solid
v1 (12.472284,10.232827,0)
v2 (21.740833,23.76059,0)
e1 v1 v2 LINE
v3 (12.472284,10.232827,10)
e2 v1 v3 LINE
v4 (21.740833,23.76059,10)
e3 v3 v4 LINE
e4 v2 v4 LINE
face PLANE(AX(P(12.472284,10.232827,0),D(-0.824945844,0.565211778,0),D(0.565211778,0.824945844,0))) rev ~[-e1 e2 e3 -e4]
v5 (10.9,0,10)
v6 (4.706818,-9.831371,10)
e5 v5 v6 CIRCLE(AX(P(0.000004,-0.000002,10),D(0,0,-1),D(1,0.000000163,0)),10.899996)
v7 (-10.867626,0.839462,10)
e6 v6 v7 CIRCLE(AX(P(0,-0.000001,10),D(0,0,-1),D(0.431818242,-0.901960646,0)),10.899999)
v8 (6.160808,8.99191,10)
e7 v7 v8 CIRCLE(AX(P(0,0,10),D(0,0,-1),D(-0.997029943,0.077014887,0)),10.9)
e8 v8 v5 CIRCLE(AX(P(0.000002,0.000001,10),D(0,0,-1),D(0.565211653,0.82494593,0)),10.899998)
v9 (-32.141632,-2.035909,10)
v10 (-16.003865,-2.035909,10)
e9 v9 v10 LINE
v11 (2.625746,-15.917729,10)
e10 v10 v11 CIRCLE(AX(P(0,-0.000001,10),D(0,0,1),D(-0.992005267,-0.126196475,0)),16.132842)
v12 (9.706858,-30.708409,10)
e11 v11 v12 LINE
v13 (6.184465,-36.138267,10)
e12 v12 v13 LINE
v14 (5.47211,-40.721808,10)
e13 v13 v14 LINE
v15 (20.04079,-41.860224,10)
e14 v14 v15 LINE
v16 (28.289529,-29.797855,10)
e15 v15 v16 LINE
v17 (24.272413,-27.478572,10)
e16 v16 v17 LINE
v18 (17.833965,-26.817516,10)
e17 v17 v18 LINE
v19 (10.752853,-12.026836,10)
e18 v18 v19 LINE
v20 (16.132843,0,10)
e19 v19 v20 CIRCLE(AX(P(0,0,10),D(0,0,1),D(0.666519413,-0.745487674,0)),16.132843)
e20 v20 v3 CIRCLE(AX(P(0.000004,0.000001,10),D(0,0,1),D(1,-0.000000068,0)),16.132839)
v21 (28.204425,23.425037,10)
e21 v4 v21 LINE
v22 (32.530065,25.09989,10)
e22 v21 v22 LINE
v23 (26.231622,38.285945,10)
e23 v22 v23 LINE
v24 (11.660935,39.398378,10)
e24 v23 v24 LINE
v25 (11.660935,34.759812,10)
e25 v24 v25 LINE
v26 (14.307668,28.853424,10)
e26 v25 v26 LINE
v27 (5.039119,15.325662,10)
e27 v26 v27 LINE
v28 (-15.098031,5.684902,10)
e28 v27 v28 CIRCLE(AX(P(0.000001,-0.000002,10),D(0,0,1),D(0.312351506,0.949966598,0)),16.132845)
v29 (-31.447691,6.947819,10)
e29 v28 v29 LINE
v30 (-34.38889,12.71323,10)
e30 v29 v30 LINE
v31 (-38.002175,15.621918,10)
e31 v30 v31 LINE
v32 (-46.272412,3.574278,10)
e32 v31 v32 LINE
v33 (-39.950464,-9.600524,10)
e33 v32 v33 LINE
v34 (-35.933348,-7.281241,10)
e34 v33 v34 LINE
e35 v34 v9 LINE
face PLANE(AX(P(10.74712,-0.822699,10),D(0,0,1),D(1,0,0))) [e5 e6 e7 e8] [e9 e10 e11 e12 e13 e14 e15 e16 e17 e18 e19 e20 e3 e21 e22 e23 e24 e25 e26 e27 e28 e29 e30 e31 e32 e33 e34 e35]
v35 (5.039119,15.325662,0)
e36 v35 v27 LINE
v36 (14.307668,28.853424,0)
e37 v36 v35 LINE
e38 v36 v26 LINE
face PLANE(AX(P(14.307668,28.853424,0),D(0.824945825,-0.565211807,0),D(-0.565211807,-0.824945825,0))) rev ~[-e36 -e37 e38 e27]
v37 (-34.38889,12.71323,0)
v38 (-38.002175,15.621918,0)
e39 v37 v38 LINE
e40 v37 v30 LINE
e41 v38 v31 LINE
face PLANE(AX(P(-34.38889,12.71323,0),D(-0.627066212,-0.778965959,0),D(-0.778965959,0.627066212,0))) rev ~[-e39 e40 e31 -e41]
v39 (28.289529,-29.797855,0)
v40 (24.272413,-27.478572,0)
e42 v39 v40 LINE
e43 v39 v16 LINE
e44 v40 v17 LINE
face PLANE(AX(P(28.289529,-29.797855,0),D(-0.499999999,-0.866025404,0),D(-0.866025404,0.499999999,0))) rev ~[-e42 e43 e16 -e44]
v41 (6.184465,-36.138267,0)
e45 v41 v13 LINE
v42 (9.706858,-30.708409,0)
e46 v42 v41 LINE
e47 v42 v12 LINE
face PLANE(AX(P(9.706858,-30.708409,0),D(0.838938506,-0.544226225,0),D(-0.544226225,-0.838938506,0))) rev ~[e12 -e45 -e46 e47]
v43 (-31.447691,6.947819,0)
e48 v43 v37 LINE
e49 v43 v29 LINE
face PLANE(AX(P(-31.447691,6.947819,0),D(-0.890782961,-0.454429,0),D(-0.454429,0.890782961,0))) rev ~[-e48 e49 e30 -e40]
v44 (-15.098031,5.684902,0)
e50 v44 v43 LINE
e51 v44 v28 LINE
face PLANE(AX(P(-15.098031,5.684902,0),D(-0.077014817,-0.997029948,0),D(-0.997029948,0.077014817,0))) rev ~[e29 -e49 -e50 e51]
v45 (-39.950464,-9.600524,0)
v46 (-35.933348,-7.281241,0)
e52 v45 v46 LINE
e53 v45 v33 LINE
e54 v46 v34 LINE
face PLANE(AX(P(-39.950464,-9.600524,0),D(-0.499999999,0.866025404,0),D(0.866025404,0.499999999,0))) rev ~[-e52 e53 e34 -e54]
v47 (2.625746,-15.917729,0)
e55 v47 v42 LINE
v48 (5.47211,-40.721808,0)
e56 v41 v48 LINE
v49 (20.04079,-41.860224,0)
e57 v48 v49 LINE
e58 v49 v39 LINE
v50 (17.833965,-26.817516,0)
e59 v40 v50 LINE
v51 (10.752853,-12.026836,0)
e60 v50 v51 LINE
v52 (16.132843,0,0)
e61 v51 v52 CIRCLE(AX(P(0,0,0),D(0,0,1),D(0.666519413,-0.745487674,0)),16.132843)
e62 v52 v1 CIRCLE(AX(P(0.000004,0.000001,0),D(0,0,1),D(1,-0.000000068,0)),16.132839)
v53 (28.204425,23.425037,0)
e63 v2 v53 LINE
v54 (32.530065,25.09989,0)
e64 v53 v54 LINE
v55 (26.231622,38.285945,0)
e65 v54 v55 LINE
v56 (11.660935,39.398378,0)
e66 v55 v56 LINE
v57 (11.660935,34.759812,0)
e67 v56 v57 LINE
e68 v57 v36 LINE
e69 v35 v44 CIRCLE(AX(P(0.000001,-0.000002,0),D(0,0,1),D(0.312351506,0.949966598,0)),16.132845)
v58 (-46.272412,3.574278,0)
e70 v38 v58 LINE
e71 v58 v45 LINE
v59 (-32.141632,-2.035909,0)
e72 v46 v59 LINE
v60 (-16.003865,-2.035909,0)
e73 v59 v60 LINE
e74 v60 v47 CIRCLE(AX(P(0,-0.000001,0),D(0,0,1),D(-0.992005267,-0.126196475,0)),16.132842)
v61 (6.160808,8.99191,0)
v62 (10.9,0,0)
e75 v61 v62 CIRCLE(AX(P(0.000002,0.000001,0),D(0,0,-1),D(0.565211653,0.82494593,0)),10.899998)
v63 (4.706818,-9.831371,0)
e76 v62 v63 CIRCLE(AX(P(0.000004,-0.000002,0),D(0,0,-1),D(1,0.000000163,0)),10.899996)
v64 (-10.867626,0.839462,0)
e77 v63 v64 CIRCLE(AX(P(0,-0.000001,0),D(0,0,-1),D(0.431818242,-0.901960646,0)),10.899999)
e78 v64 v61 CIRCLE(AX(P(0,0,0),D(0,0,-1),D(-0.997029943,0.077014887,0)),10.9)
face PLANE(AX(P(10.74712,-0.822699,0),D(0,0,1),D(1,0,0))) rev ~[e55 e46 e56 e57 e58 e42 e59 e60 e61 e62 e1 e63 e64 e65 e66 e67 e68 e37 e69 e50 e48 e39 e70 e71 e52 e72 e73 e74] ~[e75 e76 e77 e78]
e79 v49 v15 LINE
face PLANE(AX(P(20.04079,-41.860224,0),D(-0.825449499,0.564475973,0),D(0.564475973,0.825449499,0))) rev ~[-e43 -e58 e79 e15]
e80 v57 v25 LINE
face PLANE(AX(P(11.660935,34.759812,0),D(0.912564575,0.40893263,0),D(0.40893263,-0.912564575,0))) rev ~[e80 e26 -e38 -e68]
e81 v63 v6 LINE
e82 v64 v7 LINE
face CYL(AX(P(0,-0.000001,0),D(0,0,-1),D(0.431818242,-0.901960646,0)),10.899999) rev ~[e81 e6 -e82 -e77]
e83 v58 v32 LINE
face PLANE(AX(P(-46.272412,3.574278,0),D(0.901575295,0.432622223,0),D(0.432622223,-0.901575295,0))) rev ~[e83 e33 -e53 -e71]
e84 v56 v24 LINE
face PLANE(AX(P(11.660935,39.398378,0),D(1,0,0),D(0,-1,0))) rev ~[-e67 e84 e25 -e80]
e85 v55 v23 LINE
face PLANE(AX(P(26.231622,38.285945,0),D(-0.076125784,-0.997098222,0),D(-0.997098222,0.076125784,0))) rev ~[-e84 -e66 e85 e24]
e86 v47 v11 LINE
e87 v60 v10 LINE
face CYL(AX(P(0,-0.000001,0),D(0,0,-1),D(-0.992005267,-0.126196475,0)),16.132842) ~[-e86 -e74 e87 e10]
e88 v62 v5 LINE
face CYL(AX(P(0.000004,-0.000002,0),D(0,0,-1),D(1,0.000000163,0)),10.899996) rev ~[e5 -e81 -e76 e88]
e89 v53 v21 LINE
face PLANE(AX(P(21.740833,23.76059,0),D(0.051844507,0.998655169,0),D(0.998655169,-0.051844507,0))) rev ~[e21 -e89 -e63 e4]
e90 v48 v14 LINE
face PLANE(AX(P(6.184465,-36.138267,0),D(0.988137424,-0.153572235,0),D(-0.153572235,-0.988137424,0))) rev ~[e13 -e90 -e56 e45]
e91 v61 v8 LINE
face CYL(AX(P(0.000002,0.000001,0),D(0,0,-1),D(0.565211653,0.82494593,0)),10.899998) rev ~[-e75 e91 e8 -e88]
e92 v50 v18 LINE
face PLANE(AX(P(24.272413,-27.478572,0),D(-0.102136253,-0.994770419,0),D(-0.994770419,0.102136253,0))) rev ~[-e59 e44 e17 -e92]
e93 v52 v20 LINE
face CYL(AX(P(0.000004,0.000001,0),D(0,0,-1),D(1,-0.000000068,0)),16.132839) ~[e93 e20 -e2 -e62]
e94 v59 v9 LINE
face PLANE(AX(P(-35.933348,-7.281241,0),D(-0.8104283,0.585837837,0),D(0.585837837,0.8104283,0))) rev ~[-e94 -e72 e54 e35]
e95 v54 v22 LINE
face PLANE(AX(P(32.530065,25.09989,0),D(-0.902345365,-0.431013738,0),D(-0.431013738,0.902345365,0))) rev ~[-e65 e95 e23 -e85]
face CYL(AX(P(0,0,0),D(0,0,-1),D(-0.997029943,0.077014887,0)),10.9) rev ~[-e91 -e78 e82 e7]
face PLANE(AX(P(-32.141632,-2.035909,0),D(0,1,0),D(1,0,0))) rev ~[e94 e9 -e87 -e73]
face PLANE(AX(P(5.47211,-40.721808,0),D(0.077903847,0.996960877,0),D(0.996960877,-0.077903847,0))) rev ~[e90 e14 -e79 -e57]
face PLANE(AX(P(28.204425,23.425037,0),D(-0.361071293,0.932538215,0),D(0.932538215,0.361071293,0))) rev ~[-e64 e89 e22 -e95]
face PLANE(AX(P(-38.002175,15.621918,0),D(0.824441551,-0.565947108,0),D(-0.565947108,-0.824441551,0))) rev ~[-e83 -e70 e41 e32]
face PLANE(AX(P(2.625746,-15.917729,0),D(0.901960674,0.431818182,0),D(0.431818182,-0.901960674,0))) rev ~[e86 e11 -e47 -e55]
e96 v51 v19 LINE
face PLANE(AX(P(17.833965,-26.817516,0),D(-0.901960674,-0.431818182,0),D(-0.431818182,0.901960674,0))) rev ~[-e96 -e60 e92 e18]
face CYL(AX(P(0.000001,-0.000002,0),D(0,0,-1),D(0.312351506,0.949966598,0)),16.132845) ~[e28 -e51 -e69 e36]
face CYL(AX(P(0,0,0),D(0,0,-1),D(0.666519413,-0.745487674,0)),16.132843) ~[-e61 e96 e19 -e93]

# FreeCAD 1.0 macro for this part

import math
import FreeCAD as App
import Part
import Sketcher
Q = App.Units.Quantity

doc = App.newDocument("Part")
body = doc.addObject("PartDesign::Body", "Body")

# Sketch on XY plane
sketch1 = doc.addObject("Sketcher::SketchObject", "Sketch")
body.addObject(sketch1)
sketch1.AttachmentSupport = (doc.XY_Plane, [""])
sketch1.MapMode = "FlatFace"
sketch1.addGeometry([
    Part.ArcOfCircle(Part.Circle(App.Vector(0, 0, 0), App.Vector(0, 0, 1), 16.132843), math.radians(-48.201004), math.radians(0.000001)),  # 0
    Part.ArcOfCircle(Part.Circle(App.Vector(0.000004, 0.000001, 0), App.Vector(0, 0, 1), 16.132839), math.radians(-0.000004), math.radians(39.367012)),  # 1
    Part.LineSegment(App.Vector(12.472284, 10.232827, 0), App.Vector(21.740833, 23.76059, 0)),  # 2
    Part.LineSegment(App.Vector(21.740833, 23.76059, 0), App.Vector(28.204425, 23.425037, 0)),  # 3
    Part.LineSegment(App.Vector(28.204425, 23.425037, 0), App.Vector(32.530065, 25.09989, 0)),  # 4
    Part.LineSegment(App.Vector(32.530065, 25.09989, 0), App.Vector(26.231622, 38.285945, 0)),  # 5
    Part.LineSegment(App.Vector(26.231622, 38.285945, 0), App.Vector(11.660935, 39.398378, 0)),  # 6
    Part.LineSegment(App.Vector(11.660935, 39.398378, 0), App.Vector(11.660935, 34.759812, 0)),  # 7
    Part.LineSegment(App.Vector(11.660935, 34.759812, 0), App.Vector(14.307668, 28.853424, 0)),  # 8
    Part.LineSegment(App.Vector(14.307668, 28.853424, 0), App.Vector(5.039119, 15.325662, 0)),  # 9
    Part.ArcOfCircle(Part.Circle(App.Vector(0.000001, -0.000002, 0), App.Vector(0, 0, 1), 16.132845), math.radians(71.799), math.radians(159.366999)),  # 10
    Part.LineSegment(App.Vector(-15.098031, 5.684902, 0), App.Vector(-31.447691, 6.947819, 0)),  # 11
    Part.LineSegment(App.Vector(-31.447691, 6.947819, 0), App.Vector(-34.38889, 12.71323, 0)),  # 12
    Part.LineSegment(App.Vector(-34.38889, 12.71323, 0), App.Vector(-38.002175, 15.621918, 0)),  # 13
    Part.LineSegment(App.Vector(-38.002175, 15.621918, 0), App.Vector(-46.272412, 3.574278, 0)),  # 14
    Part.LineSegment(App.Vector(-46.272412, 3.574278, 0), App.Vector(-39.950464, -9.600524, 0)),  # 15
    Part.LineSegment(App.Vector(-39.950464, -9.600524, 0), App.Vector(-35.933348, -7.281241, 0)),  # 16
    Part.LineSegment(App.Vector(-35.933348, -7.281241, 0), App.Vector(-32.141632, -2.035909, 0)),  # 17
    Part.LineSegment(App.Vector(-32.141632, -2.035909, 0), App.Vector(-16.003865, -2.035909, 0)),  # 18
    Part.ArcOfCircle(Part.Circle(App.Vector(0, -0.000001, 0), App.Vector(0, 0, 1), 16.132842), math.radians(-172.750144), math.radians(-80.632993)),  # 19
    Part.LineSegment(App.Vector(2.625746, -15.917729, 0), App.Vector(9.706858, -30.708409, 0)),  # 20
    Part.LineSegment(App.Vector(9.706858, -30.708409, 0), App.Vector(6.184465, -36.138267, 0)),  # 21
    Part.LineSegment(App.Vector(6.184465, -36.138267, 0), App.Vector(5.47211, -40.721808, 0)),  # 22
    Part.LineSegment(App.Vector(5.47211, -40.721808, 0), App.Vector(20.04079, -41.860224, 0)),  # 23
    Part.LineSegment(App.Vector(20.04079, -41.860224, 0), App.Vector(28.289529, -29.797855, 0)),  # 24
    Part.LineSegment(App.Vector(28.289529, -29.797855, 0), App.Vector(24.272413, -27.478572, 0)),  # 25
    Part.LineSegment(App.Vector(24.272413, -27.478572, 0), App.Vector(17.833965, -26.817516, 0)),  # 26
    Part.LineSegment(App.Vector(17.833965, -26.817516, 0), App.Vector(10.752853, -12.026836, 0)),  # 27
    Part.ArcOfCircle(Part.Circle(App.Vector(0, 0, 0), App.Vector(0, 0, 1), 10.9), math.radians(55.583006), math.radians(175.582998)),  # 28
    Part.ArcOfCircle(Part.Circle(App.Vector(0.000002, 0.000001, 0), App.Vector(0, 0, 1), 10.899998), math.radians(-0.000006), math.radians(55.58301)),  # 29
    Part.ArcOfCircle(Part.Circle(App.Vector(0.000004, -0.000002, 0), App.Vector(0, 0, 1), 10.899996), math.radians(-64.417011), math.radians(0.000009)),  # 30
    Part.ArcOfCircle(Part.Circle(App.Vector(0, -0.000001, 0), App.Vector(0, 0, 1), 10.899999), math.radians(175.582996), math.radians(295.583006)),  # 31
], False)
sketch1.addConstraint([
    Sketcher.Constraint("Coincident", 0, 2, 1, 1),
    Sketcher.Constraint("Coincident", 1, 2, 2, 1),
    Sketcher.Constraint("Coincident", 2, 2, 3, 1),
    Sketcher.Constraint("Coincident", 3, 2, 4, 1),
    Sketcher.Constraint("Coincident", 4, 2, 5, 1),
    Sketcher.Constraint("Coincident", 5, 2, 6, 1),
    Sketcher.Constraint("Coincident", 6, 2, 7, 1),
    Sketcher.Constraint("Coincident", 7, 2, 8, 1),
    Sketcher.Constraint("Coincident", 8, 2, 9, 1),
    Sketcher.Constraint("Coincident", 9, 2, 10, 1),
    Sketcher.Constraint("Coincident", 10, 2, 11, 1),
    Sketcher.Constraint("Coincident", 11, 2, 12, 1),
    Sketcher.Constraint("Coincident", 12, 2, 13, 1),
    Sketcher.Constraint("Coincident", 13, 2, 14, 1),
    Sketcher.Constraint("Coincident", 14, 2, 15, 1),
    Sketcher.Constraint("Coincident", 15, 2, 16, 1),
    Sketcher.Constraint("Coincident", 16, 2, 17, 1),
    Sketcher.Constraint("Coincident", 17, 2, 18, 1),
    Sketcher.Constraint("Coincident", 18, 2, 19, 1),
    Sketcher.Constraint("Coincident", 19, 2, 20, 1),
    Sketcher.Constraint("Coincident", 20, 2, 21, 1),
    Sketcher.Constraint("Coincident", 21, 2, 22, 1),
    Sketcher.Constraint("Coincident", 22, 2, 23, 1),
    Sketcher.Constraint("Coincident", 23, 2, 24, 1),
    Sketcher.Constraint("Coincident", 24, 2, 25, 1),
    Sketcher.Constraint("Coincident", 25, 2, 26, 1),
    Sketcher.Constraint("Coincident", 26, 2, 27, 1),
    Sketcher.Constraint("Coincident", 27, 2, 0, 1),
    Sketcher.Constraint("Coincident", 28, 1, 29, 2),
    Sketcher.Constraint("Coincident", 29, 1, 30, 2),
    Sketcher.Constraint("Coincident", 30, 1, 31, 2),
    Sketcher.Constraint("Coincident", 31, 1, 28, 2),
    Sketcher.Constraint("Vertical", 7),
    Sketcher.Constraint("Horizontal", 18),
    Sketcher.Constraint("Coincident", 0, 3, -1, 1),
    Sketcher.Constraint("Coincident", 1, 3, -1, 1),
    Sketcher.Constraint("Coincident", 10, 3, -1, 1),
    Sketcher.Constraint("Coincident", 19, 3, -1, 1),
    Sketcher.Constraint("Coincident", 28, 3, -1, 1),
    Sketcher.Constraint("Coincident", 29, 3, -1, 1),
    Sketcher.Constraint("Coincident", 30, 3, -1, 1),
    Sketcher.Constraint("PointOnObject", 0, 2, -1),
    Sketcher.Constraint("PointOnObject", 29, 1, -1),
    Sketcher.Constraint("Radius", 28, Q("10.9 mm")),
    Sketcher.Constraint("Radius", 31, Q("10.899999 mm")),
    Sketcher.Constraint("Radius", 1, Q("16.132839 mm")),
    Sketcher.Constraint("Radius", 10, Q("16.132845 mm")),
    Sketcher.Constraint("Radius", 19, Q("16.132842 mm")),
    Sketcher.Constraint("DistanceY", 2, 2, 4, 2, Q("1.3393 mm")),
    Sketcher.Constraint("DistanceX", 12, 2, 11, 2, Q("2.941199 mm")),
    Sketcher.Constraint("DistanceY", 11, 2, 13, 2, Q("8.674099 mm")),
    Sketcher.Constraint("DistanceY", 22, 2, 20, 2, Q("10.013399 mm")),
    Sketcher.Constraint("DistanceX", 21, 2, 26, 2, Q("11.6495 mm")),
    Sketcher.Constraint("Distance", 5, Q("14.613091 mm")),
    Sketcher.Constraint("Distance", 6, Q("14.613091 mm")),
    Sketcher.Constraint("Distance", 14, Q("14.613092 mm")),
    Sketcher.Constraint("Distance", 15, Q("14.613091 mm")),
    Sketcher.Constraint("Distance", 23, Q("14.613091 mm")),
    Sketcher.Constraint("Distance", 24, Q("14.613091 mm")),
    Sketcher.Constraint("DistanceX", 18, 1, 18, 2, Q("16.137767 mm")),
    Sketcher.Constraint("DistanceY", 7, 2, 7, 1, Q("4.638566 mm")),
    Sketcher.Constraint("DistanceY", -1, 1, 2, 2, Q("23.76059 mm")),
    Sketcher.Constraint("DistanceY", -1, 1, 7, 2, Q("34.759812 mm")),
    Sketcher.Constraint("DistanceX", -1, 1, 9, 2, Q("5.039119 mm")),
    Sketcher.Constraint("DistanceX", 10, 2, -1, 1, Q("15.098031 mm")),
    Sketcher.Constraint("DistanceX", 11, 2, -1, 1, Q("31.447691 mm")),
    Sketcher.Constraint("DistanceY", -1, 1, 11, 2, Q("6.947819 mm")),
    Sketcher.Constraint("DistanceY", -1, 1, 12, 2, Q("12.71323 mm")),
    Sketcher.Constraint("DistanceY", -1, 1, 14, 2, Q("3.574278 mm")),
    Sketcher.Constraint("DistanceX", 16, 2, -1, 1, Q("35.933348 mm")),
    Sketcher.Constraint("DistanceY", 16, 2, -1, 1, Q("7.281241 mm")),
    Sketcher.Constraint("DistanceY", 17, 2, -1, 1, Q("2.035909 mm")),
    Sketcher.Constraint("DistanceY", 19, 2, -1, 1, Q("15.917729 mm")),
    Sketcher.Constraint("DistanceY", 20, 2, -1, 1, Q("30.708409 mm")),
    Sketcher.Constraint("DistanceX", -1, 1, 22, 2, Q("5.47211 mm")),
    Sketcher.Constraint("DistanceX", -1, 1, 23, 2, Q("20.04079 mm")),
    Sketcher.Constraint("DistanceX", -1, 1, 24, 2, Q("28.289529 mm")),
    Sketcher.Constraint("DistanceY", 25, 2, -1, 1, Q("27.478572 mm")),
    Sketcher.Constraint("DistanceX", -1, 1, 28, 1, Q("6.160808 mm")),
    Sketcher.Constraint("DistanceX", -1, 1, 30, 1, Q("4.706818 mm")),
    Sketcher.Constraint("DistanceY", -1, 1, 31, 1, Q("0.839462 mm")),
    Sketcher.Constraint("DistanceX", 1, 2, 0, 2, Q("3.660559 mm")),
    Sketcher.Constraint("DistanceX", 1, 2, 2, 2, Q("9.268549 mm")),
    Sketcher.Constraint("DistanceX", 1, 2, 3, 2, Q("15.732141 mm")),
    Sketcher.Constraint("DistanceY", 1, 2, 3, 2, Q("13.19221 mm")),
    Sketcher.Constraint("DistanceX", 3, 2, 4, 2, Q("4.32564 mm")),
    Sketcher.Constraint("DistanceX", 2, 2, 5, 2, Q("4.490789 mm")),
    Sketcher.Constraint("DistanceY", 8, 2, 5, 2, Q("9.432521 mm")),
    Sketcher.Constraint("DistanceX", 14, 2, 12, 2, Q("11.883522 mm")),
    Sketcher.Constraint("DistanceX", 14, 2, 15, 2, Q("6.321948 mm")),
    Sketcher.Constraint("DistanceX", 19, 2, 20, 2, Q("7.081112 mm")),
    Sketcher.Constraint("DistanceX", 19, 2, 21, 2, Q("3.558719 mm")),
    Sketcher.Constraint("DistanceY", 22, 2, 21, 2, Q("4.583541 mm")),
    Sketcher.Constraint("DistanceX", 21, 2, 25, 2, Q("18.087948 mm")),
    Sketcher.Constraint("DistanceY", 24, 2, 26, 2, Q("2.980339 mm")),
    Sketcher.Constraint("DistanceX", 27, 2, 0, 2, Q("5.37999 mm")),
    Sketcher.Constraint("Distance", 8, Q("6.472296 mm")),
])
pad1 = doc.addObject("PartDesign::Pad", "Pad")
body.addObject(pad1)
pad1.Profile = sketch1
pad1.Length = 10

doc.recompute()
